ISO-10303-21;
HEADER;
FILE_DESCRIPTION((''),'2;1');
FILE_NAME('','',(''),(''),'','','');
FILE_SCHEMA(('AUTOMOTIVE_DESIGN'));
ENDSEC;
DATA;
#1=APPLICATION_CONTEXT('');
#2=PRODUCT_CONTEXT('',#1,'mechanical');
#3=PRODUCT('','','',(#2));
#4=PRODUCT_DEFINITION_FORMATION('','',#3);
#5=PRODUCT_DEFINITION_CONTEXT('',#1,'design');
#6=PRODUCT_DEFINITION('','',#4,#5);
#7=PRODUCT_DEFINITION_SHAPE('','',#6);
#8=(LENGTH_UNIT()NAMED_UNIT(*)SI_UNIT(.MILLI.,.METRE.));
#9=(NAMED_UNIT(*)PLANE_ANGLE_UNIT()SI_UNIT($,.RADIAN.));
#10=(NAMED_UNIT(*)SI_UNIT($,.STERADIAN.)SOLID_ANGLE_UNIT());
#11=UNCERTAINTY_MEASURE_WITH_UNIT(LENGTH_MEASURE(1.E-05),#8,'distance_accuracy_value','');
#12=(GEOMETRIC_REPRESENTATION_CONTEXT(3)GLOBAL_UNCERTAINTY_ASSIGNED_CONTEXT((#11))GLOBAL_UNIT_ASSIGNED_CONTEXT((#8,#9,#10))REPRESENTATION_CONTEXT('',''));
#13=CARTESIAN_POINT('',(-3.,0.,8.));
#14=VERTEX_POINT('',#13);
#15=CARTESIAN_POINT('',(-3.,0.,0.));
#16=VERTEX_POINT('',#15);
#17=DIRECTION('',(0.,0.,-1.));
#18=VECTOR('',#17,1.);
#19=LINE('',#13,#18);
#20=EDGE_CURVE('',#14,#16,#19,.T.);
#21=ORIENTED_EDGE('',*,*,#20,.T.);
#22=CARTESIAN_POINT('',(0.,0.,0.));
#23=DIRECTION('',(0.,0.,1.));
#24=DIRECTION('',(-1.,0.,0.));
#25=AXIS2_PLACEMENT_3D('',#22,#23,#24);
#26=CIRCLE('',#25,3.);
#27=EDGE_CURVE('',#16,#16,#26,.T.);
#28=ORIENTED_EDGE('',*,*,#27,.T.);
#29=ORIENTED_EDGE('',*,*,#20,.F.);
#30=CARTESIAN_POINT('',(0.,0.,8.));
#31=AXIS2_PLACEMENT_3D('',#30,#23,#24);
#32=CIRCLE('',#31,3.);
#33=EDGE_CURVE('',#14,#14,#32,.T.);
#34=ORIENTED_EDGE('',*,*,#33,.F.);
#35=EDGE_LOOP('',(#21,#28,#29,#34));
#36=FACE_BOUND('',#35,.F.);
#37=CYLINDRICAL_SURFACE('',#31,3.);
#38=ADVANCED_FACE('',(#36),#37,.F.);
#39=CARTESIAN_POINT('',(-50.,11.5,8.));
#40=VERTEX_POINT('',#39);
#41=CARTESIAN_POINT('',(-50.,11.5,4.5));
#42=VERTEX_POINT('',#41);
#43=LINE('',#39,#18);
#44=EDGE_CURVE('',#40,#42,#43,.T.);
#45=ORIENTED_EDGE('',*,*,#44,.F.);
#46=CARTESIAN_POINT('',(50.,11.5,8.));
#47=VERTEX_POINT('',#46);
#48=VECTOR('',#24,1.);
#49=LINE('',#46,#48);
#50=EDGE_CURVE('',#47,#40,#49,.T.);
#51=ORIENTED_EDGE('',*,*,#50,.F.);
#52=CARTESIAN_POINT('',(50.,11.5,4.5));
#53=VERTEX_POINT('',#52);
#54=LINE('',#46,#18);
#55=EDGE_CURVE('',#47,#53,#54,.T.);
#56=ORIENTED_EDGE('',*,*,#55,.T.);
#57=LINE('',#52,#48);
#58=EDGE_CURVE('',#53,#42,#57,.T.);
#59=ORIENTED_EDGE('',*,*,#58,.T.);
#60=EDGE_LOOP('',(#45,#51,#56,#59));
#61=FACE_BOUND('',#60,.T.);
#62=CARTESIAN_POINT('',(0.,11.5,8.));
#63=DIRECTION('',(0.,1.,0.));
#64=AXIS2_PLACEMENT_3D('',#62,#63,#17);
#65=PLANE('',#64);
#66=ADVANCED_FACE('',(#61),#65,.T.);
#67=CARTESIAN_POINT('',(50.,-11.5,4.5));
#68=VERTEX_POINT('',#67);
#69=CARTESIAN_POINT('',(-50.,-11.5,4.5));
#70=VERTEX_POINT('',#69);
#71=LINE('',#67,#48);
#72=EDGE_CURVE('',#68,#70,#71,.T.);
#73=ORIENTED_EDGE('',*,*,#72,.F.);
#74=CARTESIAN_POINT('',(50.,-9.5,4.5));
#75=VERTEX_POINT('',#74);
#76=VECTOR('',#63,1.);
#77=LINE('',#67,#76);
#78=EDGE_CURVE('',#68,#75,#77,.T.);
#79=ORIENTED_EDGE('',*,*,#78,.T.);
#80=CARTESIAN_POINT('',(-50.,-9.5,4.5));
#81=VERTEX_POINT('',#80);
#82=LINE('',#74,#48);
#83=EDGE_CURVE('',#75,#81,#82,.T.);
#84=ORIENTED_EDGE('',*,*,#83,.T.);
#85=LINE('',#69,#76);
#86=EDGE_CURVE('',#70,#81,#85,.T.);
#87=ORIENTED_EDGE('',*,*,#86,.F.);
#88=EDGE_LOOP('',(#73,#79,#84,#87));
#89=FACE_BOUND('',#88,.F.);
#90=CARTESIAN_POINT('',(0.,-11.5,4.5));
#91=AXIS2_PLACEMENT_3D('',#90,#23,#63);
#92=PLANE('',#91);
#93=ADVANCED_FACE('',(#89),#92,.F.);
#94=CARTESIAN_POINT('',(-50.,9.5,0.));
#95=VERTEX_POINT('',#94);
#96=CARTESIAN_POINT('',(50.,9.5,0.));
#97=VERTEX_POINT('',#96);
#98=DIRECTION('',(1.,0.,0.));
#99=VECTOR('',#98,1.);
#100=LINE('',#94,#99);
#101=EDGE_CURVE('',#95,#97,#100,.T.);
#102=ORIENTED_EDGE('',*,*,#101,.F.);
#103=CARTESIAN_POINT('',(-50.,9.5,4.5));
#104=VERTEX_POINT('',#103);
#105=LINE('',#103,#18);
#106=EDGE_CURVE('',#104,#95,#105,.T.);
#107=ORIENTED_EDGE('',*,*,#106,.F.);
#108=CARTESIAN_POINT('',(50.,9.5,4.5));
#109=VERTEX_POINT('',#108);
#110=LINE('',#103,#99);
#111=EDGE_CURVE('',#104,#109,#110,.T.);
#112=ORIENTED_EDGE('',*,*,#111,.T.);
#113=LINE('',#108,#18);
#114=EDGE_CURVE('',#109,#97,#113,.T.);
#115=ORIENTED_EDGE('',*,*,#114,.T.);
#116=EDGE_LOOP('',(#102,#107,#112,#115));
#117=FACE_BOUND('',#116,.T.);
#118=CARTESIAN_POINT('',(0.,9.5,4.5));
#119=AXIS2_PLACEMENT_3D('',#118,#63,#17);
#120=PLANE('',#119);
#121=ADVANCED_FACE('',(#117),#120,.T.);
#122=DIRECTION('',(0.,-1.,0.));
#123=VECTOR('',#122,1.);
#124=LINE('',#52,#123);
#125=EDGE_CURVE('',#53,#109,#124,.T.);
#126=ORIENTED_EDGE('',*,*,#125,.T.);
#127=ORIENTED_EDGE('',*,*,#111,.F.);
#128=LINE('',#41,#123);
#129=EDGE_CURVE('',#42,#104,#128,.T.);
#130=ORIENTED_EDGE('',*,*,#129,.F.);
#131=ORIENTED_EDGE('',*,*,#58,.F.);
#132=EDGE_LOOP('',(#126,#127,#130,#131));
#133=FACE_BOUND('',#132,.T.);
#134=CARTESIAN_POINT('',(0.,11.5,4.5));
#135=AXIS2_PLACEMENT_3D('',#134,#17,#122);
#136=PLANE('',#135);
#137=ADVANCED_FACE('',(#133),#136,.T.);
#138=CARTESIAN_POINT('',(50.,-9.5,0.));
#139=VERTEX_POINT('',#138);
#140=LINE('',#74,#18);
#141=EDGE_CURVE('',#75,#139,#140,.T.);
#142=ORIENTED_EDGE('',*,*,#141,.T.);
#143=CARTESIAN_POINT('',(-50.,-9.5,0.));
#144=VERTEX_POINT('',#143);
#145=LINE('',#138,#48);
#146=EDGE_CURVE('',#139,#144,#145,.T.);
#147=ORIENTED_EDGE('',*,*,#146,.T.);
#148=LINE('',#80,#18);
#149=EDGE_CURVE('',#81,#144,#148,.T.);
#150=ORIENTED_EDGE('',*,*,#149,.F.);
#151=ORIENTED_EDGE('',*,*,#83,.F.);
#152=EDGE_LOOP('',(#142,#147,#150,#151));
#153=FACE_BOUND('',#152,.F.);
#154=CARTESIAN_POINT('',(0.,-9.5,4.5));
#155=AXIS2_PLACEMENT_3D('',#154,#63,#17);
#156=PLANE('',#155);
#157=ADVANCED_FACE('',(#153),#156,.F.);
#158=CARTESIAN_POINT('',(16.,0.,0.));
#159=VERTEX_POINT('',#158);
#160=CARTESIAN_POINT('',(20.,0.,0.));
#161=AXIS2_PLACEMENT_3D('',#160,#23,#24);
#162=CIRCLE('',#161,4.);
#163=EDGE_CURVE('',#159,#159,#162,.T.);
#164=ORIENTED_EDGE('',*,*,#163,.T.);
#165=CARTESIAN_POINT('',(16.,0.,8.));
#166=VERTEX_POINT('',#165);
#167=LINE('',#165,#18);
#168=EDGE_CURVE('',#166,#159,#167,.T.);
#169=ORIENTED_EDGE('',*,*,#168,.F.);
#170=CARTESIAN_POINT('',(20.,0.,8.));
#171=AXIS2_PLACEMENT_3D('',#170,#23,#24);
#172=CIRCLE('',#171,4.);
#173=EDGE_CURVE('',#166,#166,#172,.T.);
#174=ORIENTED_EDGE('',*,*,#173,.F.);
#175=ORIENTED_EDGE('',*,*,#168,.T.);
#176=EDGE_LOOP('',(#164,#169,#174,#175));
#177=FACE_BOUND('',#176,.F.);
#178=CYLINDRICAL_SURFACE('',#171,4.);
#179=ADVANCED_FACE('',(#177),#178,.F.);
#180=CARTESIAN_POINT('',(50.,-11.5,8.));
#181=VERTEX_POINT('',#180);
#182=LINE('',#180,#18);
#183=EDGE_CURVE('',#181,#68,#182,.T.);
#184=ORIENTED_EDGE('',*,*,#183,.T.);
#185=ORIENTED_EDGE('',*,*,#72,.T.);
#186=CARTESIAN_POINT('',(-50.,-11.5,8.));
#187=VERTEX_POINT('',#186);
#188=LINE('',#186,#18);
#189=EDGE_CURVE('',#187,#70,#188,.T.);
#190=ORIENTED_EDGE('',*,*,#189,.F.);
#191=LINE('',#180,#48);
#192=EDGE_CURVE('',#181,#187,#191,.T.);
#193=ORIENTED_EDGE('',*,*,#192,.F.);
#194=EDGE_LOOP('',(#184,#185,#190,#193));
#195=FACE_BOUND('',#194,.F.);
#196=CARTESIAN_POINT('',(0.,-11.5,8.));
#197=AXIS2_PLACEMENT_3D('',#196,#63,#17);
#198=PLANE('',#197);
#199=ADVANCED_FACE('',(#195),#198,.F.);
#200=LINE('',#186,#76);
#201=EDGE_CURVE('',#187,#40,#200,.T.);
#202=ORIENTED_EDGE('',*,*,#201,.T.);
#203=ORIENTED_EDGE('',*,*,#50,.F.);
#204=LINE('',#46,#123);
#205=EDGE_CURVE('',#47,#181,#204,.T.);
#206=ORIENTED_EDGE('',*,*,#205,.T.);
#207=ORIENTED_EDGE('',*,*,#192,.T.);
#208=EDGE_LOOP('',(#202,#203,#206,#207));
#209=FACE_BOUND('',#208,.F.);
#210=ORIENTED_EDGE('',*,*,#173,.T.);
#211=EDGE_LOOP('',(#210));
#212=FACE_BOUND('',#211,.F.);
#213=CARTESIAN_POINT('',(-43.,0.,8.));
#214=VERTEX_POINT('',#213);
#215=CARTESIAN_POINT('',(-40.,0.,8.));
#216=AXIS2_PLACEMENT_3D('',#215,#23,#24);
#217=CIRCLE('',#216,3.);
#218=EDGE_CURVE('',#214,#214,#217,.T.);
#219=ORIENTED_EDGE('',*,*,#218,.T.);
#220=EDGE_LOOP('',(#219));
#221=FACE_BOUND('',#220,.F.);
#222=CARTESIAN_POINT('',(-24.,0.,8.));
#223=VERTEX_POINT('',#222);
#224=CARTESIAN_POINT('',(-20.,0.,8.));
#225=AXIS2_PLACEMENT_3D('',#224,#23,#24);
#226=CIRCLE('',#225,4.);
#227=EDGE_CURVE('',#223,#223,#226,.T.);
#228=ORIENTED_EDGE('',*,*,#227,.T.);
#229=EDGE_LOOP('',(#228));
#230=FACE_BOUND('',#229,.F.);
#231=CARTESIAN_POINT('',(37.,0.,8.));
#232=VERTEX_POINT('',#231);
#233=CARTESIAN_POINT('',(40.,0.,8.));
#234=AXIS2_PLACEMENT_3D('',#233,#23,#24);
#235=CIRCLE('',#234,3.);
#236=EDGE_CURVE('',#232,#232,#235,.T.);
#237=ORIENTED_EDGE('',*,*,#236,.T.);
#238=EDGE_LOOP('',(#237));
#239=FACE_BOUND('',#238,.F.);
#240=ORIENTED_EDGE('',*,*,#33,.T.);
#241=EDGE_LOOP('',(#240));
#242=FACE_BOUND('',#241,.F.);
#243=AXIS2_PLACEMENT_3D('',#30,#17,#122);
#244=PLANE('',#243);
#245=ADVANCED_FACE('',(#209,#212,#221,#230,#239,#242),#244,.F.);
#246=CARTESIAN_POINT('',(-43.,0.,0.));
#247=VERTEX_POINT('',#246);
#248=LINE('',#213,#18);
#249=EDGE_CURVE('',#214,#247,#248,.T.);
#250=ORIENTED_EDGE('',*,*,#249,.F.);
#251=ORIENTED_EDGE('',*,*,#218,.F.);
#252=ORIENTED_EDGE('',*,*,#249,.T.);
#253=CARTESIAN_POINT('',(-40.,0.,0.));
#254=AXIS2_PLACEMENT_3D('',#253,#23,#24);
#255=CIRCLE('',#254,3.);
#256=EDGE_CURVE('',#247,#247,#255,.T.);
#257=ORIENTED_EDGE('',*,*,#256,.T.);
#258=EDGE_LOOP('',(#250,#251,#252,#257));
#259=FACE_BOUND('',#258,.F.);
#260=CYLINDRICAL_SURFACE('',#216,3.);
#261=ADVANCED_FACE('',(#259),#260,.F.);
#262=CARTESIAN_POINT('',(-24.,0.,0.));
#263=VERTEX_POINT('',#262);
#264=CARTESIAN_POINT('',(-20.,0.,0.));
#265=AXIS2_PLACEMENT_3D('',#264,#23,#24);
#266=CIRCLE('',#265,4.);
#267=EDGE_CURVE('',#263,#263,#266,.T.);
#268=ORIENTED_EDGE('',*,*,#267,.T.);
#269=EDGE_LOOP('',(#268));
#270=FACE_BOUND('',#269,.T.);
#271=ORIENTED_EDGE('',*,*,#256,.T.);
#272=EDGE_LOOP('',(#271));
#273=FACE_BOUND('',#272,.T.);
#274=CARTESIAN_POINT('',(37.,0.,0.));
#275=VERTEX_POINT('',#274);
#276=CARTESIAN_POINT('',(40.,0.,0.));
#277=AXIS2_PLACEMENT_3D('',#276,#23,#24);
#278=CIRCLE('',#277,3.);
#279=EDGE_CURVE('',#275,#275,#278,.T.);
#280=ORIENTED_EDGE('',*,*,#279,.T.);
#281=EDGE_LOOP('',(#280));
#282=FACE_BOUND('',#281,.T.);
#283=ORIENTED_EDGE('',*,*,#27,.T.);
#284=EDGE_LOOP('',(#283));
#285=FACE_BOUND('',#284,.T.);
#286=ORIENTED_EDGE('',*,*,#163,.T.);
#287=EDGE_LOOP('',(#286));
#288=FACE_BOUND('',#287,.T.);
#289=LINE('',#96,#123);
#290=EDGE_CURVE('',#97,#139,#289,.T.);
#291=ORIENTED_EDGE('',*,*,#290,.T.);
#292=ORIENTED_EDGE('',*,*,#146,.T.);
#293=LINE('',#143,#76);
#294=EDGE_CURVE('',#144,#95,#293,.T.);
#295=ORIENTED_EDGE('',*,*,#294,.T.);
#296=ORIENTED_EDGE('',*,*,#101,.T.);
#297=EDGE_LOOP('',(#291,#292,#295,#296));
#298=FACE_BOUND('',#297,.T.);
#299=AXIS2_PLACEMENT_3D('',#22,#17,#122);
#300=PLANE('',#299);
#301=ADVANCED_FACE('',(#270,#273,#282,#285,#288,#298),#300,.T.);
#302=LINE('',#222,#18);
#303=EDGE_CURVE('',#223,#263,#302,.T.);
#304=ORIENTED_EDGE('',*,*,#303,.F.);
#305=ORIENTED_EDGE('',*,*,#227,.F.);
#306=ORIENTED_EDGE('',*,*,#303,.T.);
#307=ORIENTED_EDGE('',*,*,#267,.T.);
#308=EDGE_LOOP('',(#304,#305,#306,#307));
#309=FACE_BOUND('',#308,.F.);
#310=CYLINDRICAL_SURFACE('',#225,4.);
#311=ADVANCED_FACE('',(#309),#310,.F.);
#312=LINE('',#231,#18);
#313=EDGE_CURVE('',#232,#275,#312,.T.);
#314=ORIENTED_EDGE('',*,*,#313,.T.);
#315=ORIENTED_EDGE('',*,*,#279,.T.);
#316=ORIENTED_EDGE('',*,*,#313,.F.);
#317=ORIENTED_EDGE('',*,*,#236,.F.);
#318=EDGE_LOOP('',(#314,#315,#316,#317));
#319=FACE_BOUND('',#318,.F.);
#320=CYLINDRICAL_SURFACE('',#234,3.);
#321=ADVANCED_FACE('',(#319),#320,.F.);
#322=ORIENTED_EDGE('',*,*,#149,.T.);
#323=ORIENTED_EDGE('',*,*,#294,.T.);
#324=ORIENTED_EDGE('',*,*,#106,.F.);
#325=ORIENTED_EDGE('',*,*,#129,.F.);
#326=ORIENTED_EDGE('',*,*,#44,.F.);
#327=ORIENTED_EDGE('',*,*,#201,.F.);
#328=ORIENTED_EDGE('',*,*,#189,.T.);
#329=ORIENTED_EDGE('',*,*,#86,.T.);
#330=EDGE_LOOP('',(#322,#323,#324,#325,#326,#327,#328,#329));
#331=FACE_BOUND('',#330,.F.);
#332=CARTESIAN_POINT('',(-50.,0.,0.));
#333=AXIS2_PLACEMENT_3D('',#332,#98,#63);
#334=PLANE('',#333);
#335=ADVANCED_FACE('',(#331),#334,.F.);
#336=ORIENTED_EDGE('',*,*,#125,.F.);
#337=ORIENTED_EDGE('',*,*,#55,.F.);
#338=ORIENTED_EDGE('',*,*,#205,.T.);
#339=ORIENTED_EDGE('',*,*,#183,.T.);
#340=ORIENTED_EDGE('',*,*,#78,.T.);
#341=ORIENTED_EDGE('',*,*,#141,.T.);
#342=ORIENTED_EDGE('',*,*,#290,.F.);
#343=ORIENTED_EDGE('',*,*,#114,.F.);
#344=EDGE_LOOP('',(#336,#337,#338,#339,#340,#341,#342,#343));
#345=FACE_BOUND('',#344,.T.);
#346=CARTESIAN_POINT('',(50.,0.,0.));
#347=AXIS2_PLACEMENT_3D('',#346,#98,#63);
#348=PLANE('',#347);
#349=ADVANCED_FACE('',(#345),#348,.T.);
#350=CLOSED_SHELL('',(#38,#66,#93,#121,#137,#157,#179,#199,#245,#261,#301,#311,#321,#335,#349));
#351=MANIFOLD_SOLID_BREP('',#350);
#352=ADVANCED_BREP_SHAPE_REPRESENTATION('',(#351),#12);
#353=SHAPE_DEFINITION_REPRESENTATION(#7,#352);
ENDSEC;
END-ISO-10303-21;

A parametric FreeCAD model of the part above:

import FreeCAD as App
import Part
import Sketcher


def add_polygon(sketch, points):
    """Adds a closed chain of lines whose ends are joined by coincident constraints."""
    first, n = sketch.GeometryCount, len(points)
    for a, b in zip(points, points[1:] + points[:1]):
        sketch.addGeometry(Part.LineSegment(App.Vector(*a, 0), App.Vector(*b, 0)), False)
    for i in range(n):
        sketch.addConstraint(Sketcher.Constraint("Coincident", first + i, 2, first + (i + 1) % n, 1))

doc = App.newDocument("Part")
body = doc.addObject("PartDesign::Body", "Body")

# Sketch on YZ plane
sketch1 = body.newObject("Sketcher::SketchObject", "Sketch")
sketch1.AttachmentSupport = (doc.getObject("YZ_Plane"), [""])
sketch1.MapMode = "FlatFace"
add_polygon(sketch1, [(-9.5, 0), (9.5, 0), (9.5, 4.5), (11.5, 4.5), (11.5, 8), (-11.5, 8), (-11.5, 4.5), (-9.5, 4.5)])  # lines 0-7
sketch1.addConstraint(Sketcher.Constraint("Horizontal", 0))
sketch1.addConstraint(Sketcher.Constraint("Vertical", 1))
sketch1.addConstraint(Sketcher.Constraint("Horizontal", 2))
sketch1.addConstraint(Sketcher.Constraint("Vertical", 3))
sketch1.addConstraint(Sketcher.Constraint("Horizontal", 4))
sketch1.addConstraint(Sketcher.Constraint("Vertical", 5))
sketch1.addConstraint(Sketcher.Constraint("Horizontal", 6))
sketch1.addConstraint(Sketcher.Constraint("Vertical", 7))
sketch1.addConstraint(Sketcher.Constraint("Symmetric", 0, 2, 7, 2, -1, 1))
sketch1.addConstraint(Sketcher.Constraint("Symmetric", 2, 2, 5, 2, -2))
sketch1.addConstraint(Sketcher.Constraint("DistanceY", 3, 1, 3, 2, 3.5))
sketch1.addConstraint(Sketcher.Constraint("DistanceY", -1, 1, 3, 2, 8.0))
sketch1.addConstraint(Sketcher.Constraint("DistanceX", -1, 1, 0, 2, 9.5))
sketch1.addConstraint(Sketcher.Constraint("DistanceX", -1, 1, 2, 2, 11.5))
pad1 = body.newObject("PartDesign::Pad", "Pad")
pad1.Profile = sketch1
pad1.Length = 100
pad1.Midplane = True

# Sketch on XY plane
sketch2 = body.newObject("Sketcher::SketchObject", "Sketch001")
sketch2.AttachmentSupport = (doc.getObject("XY_Plane"), [""])
sketch2.MapMode = "FlatFace"
sketch2.AttachmentOffset = App.Placement(App.Vector(0, 0, 8), App.Rotation())
sketch2.addGeometry(Part.Circle(App.Vector(-40, 0, 0), App.Vector(0, 0, 1), 3), False)
sketch2.addGeometry(Part.Circle(App.Vector(-20, 0, 0), App.Vector(0, 0, 1), 4), False)
sketch2.addConstraint(Sketcher.Constraint("PointOnObject", 0, 3, -1))
sketch2.addConstraint(Sketcher.Constraint("PointOnObject", 1, 3, -1))
sketch2.addConstraint(Sketcher.Constraint("Diameter", 0, 6.0))
sketch2.addConstraint(Sketcher.Constraint("Diameter", 1, 8.0))
sketch2.addConstraint(Sketcher.Constraint("DistanceX", 1, 3, -1, 1, 20.0))
sketch2.addConstraint(Sketcher.Constraint("DistanceX", 0, 3, 1, 3, 20.0))
pocket1 = body.newObject("PartDesign::Pocket", "Pocket")
pocket1.Profile = sketch2
pocket1.Length = 8
doc.recompute()

linearpattern = body.newObject("PartDesign::LinearPattern", "LinearPattern")
linearpattern.Originals = [pocket1]
linearpattern.Direction = (doc.getObject("X_Axis"), [""])
linearpattern.Mode = "offset"
linearpattern.Offset = 40
linearpattern.Occurrences = 5
body.Tip = linearpattern

doc.recompute()
